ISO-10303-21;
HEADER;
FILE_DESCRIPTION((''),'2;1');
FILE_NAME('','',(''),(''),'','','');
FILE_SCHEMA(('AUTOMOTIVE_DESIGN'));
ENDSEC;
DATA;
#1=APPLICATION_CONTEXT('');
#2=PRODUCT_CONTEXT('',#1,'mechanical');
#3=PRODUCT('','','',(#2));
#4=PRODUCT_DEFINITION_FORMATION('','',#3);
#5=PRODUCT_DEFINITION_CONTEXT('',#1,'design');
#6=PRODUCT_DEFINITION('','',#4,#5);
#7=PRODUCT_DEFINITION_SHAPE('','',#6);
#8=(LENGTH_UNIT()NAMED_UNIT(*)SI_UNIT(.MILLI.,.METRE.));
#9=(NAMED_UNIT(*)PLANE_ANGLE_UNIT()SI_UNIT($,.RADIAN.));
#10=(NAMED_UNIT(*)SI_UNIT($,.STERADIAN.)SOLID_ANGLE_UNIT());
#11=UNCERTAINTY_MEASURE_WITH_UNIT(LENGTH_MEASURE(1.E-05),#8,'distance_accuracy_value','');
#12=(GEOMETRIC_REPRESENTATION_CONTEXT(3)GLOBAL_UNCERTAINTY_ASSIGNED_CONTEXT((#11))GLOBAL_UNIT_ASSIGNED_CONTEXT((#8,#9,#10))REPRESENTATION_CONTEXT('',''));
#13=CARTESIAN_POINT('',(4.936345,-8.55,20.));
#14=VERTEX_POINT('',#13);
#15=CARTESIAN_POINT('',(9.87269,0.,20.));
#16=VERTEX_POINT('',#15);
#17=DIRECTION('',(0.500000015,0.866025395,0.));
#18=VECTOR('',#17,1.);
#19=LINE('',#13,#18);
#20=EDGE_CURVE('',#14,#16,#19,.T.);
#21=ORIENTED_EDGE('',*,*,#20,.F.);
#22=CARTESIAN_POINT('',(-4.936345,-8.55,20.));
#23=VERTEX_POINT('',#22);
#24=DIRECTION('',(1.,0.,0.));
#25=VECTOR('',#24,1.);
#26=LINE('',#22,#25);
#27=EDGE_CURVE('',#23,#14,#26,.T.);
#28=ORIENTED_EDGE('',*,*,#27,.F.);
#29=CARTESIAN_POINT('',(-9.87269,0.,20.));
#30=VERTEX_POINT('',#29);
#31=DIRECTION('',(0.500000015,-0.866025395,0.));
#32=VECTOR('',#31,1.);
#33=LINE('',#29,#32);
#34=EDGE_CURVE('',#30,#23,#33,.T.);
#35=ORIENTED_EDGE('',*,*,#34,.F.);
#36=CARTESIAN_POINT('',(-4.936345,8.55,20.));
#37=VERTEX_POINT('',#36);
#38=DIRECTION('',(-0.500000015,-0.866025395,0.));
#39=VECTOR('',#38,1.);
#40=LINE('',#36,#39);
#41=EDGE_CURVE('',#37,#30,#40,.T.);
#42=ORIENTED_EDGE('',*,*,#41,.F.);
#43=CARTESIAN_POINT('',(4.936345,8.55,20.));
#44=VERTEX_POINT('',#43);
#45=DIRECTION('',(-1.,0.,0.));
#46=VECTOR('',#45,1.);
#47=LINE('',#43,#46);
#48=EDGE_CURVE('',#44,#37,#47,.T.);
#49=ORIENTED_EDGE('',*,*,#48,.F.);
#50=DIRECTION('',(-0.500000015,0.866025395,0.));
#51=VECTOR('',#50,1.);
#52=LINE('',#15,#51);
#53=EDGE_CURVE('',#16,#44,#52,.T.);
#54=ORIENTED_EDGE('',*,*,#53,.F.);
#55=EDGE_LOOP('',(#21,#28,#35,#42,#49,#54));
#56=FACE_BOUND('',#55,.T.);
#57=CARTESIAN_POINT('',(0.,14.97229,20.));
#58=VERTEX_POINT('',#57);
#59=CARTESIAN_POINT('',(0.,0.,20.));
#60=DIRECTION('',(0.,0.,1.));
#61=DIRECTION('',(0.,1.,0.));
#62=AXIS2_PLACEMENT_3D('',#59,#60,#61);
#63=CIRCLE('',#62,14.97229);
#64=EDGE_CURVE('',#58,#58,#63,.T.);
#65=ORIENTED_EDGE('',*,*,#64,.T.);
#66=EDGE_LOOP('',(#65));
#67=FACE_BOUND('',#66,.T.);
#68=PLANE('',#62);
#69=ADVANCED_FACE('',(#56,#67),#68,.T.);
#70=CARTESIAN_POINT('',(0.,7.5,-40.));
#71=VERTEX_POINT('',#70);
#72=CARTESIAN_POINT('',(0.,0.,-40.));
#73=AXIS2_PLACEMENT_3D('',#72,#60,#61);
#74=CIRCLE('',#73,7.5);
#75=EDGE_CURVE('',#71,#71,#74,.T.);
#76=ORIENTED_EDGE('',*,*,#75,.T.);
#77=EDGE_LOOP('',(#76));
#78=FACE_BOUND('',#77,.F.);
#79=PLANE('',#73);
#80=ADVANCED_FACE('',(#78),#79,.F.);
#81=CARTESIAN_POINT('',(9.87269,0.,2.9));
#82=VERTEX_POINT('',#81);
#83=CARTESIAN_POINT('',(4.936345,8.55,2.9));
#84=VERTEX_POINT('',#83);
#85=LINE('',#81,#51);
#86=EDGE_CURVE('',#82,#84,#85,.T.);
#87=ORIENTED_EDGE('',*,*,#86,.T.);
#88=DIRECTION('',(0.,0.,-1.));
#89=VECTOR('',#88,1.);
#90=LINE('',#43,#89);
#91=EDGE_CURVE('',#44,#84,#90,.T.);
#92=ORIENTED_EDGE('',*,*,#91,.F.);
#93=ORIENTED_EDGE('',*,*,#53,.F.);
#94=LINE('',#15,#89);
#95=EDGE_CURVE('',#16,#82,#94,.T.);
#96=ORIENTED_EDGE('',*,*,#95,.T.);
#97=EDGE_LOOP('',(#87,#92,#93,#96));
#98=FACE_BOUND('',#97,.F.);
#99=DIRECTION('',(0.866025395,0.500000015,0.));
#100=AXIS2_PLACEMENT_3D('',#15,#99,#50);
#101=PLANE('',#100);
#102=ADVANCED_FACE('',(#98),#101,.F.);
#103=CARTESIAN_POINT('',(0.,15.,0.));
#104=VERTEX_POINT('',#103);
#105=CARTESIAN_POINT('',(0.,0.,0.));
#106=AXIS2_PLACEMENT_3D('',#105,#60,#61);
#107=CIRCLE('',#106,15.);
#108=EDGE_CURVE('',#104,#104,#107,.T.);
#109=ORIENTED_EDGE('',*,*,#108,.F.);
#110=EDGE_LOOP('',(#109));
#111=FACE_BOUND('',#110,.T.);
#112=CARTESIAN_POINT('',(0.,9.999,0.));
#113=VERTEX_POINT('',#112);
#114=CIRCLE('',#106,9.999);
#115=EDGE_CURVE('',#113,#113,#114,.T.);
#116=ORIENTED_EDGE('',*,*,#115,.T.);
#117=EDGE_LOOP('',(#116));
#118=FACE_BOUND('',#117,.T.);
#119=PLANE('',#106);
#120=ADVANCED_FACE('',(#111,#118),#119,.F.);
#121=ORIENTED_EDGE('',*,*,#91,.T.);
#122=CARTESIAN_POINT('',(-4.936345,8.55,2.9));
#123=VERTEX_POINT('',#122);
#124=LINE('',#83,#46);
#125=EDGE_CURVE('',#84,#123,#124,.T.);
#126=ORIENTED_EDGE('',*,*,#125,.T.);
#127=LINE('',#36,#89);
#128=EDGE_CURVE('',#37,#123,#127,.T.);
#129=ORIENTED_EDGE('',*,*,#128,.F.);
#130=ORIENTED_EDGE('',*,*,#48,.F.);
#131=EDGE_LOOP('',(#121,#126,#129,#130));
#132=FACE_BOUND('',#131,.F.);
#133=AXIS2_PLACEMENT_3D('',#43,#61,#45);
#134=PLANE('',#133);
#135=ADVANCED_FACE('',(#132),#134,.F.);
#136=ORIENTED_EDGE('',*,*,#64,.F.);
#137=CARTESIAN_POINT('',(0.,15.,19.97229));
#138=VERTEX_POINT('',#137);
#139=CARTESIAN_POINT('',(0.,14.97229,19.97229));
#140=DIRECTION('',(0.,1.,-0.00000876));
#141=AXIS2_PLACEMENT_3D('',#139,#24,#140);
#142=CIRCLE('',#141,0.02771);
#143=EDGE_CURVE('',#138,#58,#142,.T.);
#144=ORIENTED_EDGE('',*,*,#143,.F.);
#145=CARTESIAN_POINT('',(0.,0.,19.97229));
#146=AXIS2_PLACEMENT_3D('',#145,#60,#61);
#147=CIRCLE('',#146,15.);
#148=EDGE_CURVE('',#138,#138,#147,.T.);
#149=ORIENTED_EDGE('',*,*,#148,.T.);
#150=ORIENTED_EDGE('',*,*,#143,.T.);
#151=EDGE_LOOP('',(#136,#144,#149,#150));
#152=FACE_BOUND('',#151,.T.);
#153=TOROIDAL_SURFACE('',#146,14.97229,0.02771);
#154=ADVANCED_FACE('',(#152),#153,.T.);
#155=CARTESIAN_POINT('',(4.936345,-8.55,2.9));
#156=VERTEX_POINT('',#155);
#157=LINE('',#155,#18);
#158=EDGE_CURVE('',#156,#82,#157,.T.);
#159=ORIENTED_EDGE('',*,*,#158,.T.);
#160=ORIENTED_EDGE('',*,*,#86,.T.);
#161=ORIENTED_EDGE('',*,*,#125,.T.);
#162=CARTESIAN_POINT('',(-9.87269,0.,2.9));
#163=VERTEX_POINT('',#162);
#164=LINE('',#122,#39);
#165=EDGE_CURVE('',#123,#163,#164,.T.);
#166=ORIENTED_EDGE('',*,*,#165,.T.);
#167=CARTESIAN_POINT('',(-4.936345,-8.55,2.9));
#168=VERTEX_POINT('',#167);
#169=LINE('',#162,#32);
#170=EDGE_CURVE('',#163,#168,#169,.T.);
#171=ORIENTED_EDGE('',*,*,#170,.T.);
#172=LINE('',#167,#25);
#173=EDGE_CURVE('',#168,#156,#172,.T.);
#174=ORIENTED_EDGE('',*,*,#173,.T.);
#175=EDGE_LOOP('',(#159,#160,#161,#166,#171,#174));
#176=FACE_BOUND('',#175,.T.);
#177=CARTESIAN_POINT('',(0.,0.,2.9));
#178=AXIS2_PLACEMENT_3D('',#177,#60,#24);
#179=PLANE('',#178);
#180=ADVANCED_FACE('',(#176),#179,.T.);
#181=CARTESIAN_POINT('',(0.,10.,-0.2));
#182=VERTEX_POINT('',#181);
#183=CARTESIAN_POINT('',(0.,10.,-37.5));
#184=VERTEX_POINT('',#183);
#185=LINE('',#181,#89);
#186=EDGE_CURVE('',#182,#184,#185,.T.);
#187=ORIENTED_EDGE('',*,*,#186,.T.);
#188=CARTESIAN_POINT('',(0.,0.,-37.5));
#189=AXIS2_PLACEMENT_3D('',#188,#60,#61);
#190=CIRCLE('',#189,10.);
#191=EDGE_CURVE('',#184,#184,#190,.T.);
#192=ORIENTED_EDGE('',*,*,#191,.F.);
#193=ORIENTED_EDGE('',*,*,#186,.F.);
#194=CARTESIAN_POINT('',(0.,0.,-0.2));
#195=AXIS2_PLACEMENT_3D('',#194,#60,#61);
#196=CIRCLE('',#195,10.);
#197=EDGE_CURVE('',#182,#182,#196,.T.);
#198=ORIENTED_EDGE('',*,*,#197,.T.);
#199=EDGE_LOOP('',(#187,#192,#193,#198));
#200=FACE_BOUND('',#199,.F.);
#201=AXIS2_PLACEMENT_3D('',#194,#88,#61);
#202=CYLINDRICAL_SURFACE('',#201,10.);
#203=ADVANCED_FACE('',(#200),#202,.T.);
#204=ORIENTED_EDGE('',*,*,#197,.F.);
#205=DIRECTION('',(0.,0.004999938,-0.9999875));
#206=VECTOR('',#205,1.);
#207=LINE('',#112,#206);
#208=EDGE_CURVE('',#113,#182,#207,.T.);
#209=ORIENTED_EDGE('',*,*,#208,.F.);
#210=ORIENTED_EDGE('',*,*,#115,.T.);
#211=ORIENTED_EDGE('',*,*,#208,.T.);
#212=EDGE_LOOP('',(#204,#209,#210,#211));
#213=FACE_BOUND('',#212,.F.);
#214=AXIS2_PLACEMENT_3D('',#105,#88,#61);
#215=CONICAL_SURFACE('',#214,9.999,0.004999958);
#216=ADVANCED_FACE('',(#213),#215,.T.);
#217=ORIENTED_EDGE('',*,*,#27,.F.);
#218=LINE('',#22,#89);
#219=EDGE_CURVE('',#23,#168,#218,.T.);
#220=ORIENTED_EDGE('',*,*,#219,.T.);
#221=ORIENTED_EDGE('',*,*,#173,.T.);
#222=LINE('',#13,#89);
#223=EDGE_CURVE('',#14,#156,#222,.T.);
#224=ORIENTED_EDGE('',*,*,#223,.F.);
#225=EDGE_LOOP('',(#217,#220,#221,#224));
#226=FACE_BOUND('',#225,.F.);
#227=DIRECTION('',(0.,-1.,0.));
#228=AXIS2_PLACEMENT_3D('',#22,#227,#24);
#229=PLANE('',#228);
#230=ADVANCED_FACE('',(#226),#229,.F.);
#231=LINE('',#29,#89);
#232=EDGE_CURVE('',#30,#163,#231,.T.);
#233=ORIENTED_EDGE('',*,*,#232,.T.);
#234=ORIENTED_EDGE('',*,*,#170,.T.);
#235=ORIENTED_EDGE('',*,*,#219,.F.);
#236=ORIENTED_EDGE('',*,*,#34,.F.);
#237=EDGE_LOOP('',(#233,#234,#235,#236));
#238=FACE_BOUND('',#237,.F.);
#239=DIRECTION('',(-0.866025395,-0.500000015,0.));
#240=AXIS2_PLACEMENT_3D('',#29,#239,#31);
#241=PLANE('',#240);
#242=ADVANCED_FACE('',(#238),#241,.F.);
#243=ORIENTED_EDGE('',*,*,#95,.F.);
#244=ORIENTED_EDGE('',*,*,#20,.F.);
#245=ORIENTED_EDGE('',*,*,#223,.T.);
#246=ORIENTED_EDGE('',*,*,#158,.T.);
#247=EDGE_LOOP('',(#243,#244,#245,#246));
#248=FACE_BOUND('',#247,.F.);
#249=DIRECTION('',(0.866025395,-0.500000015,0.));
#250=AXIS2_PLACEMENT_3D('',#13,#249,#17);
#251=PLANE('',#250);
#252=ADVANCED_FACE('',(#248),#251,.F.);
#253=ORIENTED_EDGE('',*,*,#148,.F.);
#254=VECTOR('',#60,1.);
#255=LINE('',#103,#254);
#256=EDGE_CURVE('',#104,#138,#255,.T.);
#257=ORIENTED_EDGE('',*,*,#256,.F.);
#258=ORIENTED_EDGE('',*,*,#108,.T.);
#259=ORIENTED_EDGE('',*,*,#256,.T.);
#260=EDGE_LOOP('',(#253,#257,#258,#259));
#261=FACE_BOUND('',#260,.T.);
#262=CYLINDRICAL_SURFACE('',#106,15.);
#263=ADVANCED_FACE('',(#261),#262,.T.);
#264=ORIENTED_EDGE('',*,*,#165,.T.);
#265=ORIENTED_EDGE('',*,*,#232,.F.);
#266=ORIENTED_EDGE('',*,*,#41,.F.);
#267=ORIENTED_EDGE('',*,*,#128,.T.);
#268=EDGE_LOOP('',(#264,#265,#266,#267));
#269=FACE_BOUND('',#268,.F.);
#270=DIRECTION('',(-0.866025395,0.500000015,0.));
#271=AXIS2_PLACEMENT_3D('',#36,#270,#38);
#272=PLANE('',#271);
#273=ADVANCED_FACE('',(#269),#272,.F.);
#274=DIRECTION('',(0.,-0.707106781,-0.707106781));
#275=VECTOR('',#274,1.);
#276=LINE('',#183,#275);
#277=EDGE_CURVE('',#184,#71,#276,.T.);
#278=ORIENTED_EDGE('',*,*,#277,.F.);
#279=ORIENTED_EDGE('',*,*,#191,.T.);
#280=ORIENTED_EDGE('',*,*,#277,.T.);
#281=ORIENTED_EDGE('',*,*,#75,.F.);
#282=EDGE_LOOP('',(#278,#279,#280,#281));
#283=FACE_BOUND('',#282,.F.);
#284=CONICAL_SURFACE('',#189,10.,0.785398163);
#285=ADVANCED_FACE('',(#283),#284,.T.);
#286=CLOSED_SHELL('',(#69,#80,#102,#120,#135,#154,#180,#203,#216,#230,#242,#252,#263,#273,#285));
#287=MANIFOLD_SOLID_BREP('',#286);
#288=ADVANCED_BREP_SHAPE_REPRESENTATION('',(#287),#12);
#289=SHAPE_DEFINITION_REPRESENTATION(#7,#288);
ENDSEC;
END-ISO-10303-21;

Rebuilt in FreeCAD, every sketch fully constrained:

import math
import FreeCAD as App
import Part
import Sketcher
from FreeCAD import Vector
Q = App.Units.Quantity

doc = App.newDocument("Part")
body = doc.addObject("PartDesign::Body", "Body")

# Sketch on YZ plane
sketch1 = doc.addObject("Sketcher::SketchObject", "Sketch")
body.addObject(sketch1)
sketch1.AttachmentSupport = (doc.YZ_Plane, [""])
sketch1.MapMode = "FlatFace"
sketch1.addGeometry(Part.LineSegment(Vector(9.999, 0, 0), Vector(15, 0, 0)), False)
sketch1.addGeometry(Part.LineSegment(Vector(15, 0, 0), Vector(15, 19.972, 0)), False)
sketch1.addGeometry(Part.ArcOfCircle(Part.Circle(Vector(14.972, 19.972, 0), Vector(0, 0, 1), 0.028), math.radians(0), math.radians(90)), False)
sketch1.addGeometry(Part.LineSegment(Vector(14.972, 20, 0), Vector(0, 20, 0)), False)
sketch1.addGeometry(Part.LineSegment(Vector(0, 20, 0), Vector(0, -40, 0)), False)
sketch1.addGeometry(Part.LineSegment(Vector(0, -40, 0), Vector(7.5, -40, 0)), False)
sketch1.addGeometry(Part.LineSegment(Vector(7.5, -40, 0), Vector(10, -37.5, 0)), False)
sketch1.addGeometry(Part.LineSegment(Vector(10, -37.5, 0), Vector(10, -0.2, 0)), False)
sketch1.addGeometry(Part.LineSegment(Vector(10, -0.2, 0), Vector(9.999, 0, 0)), False)
sketch1.addConstraint(Sketcher.Constraint("Coincident", 0, 2, 1, 1))
sketch1.addConstraint(Sketcher.Constraint("Coincident", 1, 2, 2, 1))
sketch1.addConstraint(Sketcher.Constraint("Coincident", 2, 2, 3, 1))
sketch1.addConstraint(Sketcher.Constraint("Coincident", 3, 2, 4, 1))
sketch1.addConstraint(Sketcher.Constraint("Coincident", 4, 2, 5, 1))
sketch1.addConstraint(Sketcher.Constraint("Coincident", 5, 2, 6, 1))
sketch1.addConstraint(Sketcher.Constraint("Coincident", 6, 2, 7, 1))
sketch1.addConstraint(Sketcher.Constraint("Coincident", 7, 2, 8, 1))
sketch1.addConstraint(Sketcher.Constraint("Coincident", 8, 2, 0, 1))
sketch1.addConstraint(Sketcher.Constraint("Horizontal", 0))
sketch1.addConstraint(Sketcher.Constraint("Vertical", 1))
sketch1.addConstraint(Sketcher.Constraint("Horizontal", 3))
sketch1.addConstraint(Sketcher.Constraint("Vertical", 4))
sketch1.addConstraint(Sketcher.Constraint("Horizontal", 5))
sketch1.addConstraint(Sketcher.Constraint("Vertical", 7))
sketch1.addConstraint(Sketcher.Constraint("PointOnObject", 0, 2, -1))
sketch1.addConstraint(Sketcher.Constraint("PointOnObject", 3, 2, -2))
sketch1.addConstraint(Sketcher.Constraint("Horizontal", 2, 3, 1, 2))
sketch1.addConstraint(Sketcher.Constraint("DistanceY", 4, 2, 4, 1, 60.0))
sketch1.addConstraint(Sketcher.Constraint("Angle", 6, Q("45 deg")))
sketch1.addConstraint(Sketcher.Constraint("DistanceX", 5, 1, 5, 2, 7.5))
sketch1.addConstraint(Sketcher.Constraint("DistanceY", 7, 1, 7, 2, 37.3))
sketch1.addConstraint(Sketcher.Constraint("DistanceX", -1, 1, 0, 2, 15.0))
sketch1.addConstraint(Sketcher.Constraint("DistanceY", -1, 1, 2, 2, 20.0))
sketch1.addConstraint(Sketcher.Constraint("DistanceX", -1, 1, 6, 2, 10.0))
sketch1.addConstraint(Sketcher.Constraint("DistanceX", 0, 1, 0, 2, 5.001))
sketch1.addConstraint(Sketcher.Constraint("Radius", 2, 0.02771))
sketch1.addConstraint(Sketcher.Constraint("DistanceX", 3, 2, 3, 1, 14.97229))
revolution = doc.addObject("PartDesign::Revolution", "Revolution")
body.addObject(revolution)
revolution.Profile = sketch1
revolution.ReferenceAxis = (sketch1, ["V_Axis"])
revolution.Angle = 360

# Sketch on XY plane
sketch2 = doc.addObject("Sketcher::SketchObject", "Sketch001")
body.addObject(sketch2)
sketch2.AttachmentSupport = (doc.XY_Plane, [""])
sketch2.MapMode = "FlatFace"
sketch2.AttachmentOffset = App.Placement(Vector(0, 0, 20), App.Rotation())
sketch2.addGeometry(Part.LineSegment(Vector(10, 0, 0), Vector(5, 9, 0)), False)
sketch2.addGeometry(Part.LineSegment(Vector(5, 9, 0), Vector(-5, 9, 0)), False)
sketch2.addGeometry(Part.LineSegment(Vector(-5, 9, 0), Vector(-10, 0, 0)), False)
sketch2.addGeometry(Part.LineSegment(Vector(-10, 0, 0), Vector(-5, -9, 0)), False)
sketch2.addGeometry(Part.LineSegment(Vector(-5, -9, 0), Vector(5, -9, 0)), False)
sketch2.addGeometry(Part.LineSegment(Vector(5, -9, 0), Vector(10, 0, 0)), False)
sketch2.addConstraint(Sketcher.Constraint("Coincident", 0, 2, 1, 1))
sketch2.addConstraint(Sketcher.Constraint("Coincident", 1, 2, 2, 1))
sketch2.addConstraint(Sketcher.Constraint("Coincident", 2, 2, 3, 1))
sketch2.addConstraint(Sketcher.Constraint("Coincident", 3, 2, 4, 1))
sketch2.addConstraint(Sketcher.Constraint("Coincident", 4, 2, 5, 1))
sketch2.addConstraint(Sketcher.Constraint("Coincident", 5, 2, 0, 1))
sketch2.addConstraint(Sketcher.Constraint("Horizontal", 1))
sketch2.addConstraint(Sketcher.Constraint("Horizontal", 4))
sketch2.addConstraint(Sketcher.Constraint("Symmetric", 0, 2, 3, 2, -1, 1))
sketch2.addConstraint(Sketcher.Constraint("Symmetric", 2, 2, 5, 2, -1, 1))
sketch2.addConstraint(Sketcher.Constraint("PointOnObject", 2, 2, -1))
sketch2.addConstraint(Sketcher.Constraint("Parallel", 2, 5))
sketch2.addConstraint(Sketcher.Constraint("Vertical", 1, 2, 3, 2))
sketch2.addConstraint(Sketcher.Constraint("Angle", 0, Q("120.000001 deg")))
sketch2.addConstraint(Sketcher.Constraint("DistanceY", 3, 2, 1, 2, 17.1))
sketch2.addConstraint(Sketcher.Constraint("DistanceX", 1, 2, 1, 1, 9.87269))
pocket1 = doc.addObject("PartDesign::Pocket", "Pocket")
body.addObject(pocket1)
pocket1.Profile = sketch2
pocket1.Length = 17.1

doc.recompute()
